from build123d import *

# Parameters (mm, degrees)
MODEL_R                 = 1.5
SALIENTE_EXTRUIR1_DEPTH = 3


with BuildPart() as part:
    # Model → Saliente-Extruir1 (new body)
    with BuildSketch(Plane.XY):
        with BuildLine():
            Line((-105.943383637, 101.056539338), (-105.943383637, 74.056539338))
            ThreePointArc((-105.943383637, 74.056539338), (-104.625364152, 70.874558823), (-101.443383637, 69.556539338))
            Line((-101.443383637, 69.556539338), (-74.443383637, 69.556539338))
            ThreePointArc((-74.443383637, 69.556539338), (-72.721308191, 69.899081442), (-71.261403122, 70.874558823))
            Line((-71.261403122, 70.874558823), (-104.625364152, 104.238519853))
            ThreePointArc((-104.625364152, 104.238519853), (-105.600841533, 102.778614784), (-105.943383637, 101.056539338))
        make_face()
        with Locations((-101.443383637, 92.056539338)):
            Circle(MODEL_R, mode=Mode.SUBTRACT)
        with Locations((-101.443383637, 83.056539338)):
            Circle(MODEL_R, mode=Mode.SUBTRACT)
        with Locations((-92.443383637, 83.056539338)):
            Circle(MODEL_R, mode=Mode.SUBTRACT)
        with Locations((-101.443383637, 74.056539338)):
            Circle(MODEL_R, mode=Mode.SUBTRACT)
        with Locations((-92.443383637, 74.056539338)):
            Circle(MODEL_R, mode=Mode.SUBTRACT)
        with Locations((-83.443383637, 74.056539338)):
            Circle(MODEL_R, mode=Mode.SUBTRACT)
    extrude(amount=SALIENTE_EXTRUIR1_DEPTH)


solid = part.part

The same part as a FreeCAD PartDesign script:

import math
import FreeCAD as App
import Part
import Sketcher

V = App.Vector
Q = App.Units.Quantity

doc = App.newDocument("Part")
body = doc.addObject("PartDesign::Body", "Body")

# Sketch on XY plane
sketch1 = doc.addObject("Sketcher::SketchObject", "Sketch")
body.addObject(sketch1)
sketch1.AttachmentSupport = (doc.XY_Plane, [""])
sketch1.MapMode = "FlatFace"
sketch1.addGeometry(Part.LineSegment(V(-105.943384, 101.056539, 0), V(-105.943384, 74.056539, 0)), False)
sketch1.addGeometry(Part.ArcOfCircle(Part.Circle(V(-101.443384, 74.056539, 0), V(0, 0, 1), 4.5), math.radians(-180), math.radians(-90)), False)
sketch1.addGeometry(Part.LineSegment(V(-101.443384, 69.556539, 0), V(-74.443384, 69.556539, 0)), False)
sketch1.addGeometry(Part.ArcOfCircle(Part.Circle(V(-74.443384, 74.056539, 0), V(0, 0, 1), 4.5), math.radians(-90), math.radians(-45)), False)
sketch1.addGeometry(Part.LineSegment(V(-71.261403, 70.874559, 0), V(-104.625364, 104.23852, 0)), False)
sketch1.addGeometry(Part.ArcOfCircle(Part.Circle(V(-101.443384, 101.056539, 0), V(0, 0, 1), 4.5), math.radians(135), math.radians(180)), False)
sketch1.addGeometry(Part.Circle(V(-101.443384, 74.056539, 0), V(0, 0, 1), 1.5), False)
sketch1.addGeometry(Part.Circle(V(-92.443384, 74.056539, 0), V(0, 0, 1), 1.5), False)
sketch1.addGeometry(Part.Circle(V(-83.443384, 74.056539, 0), V(0, 0, 1), 1.5), False)
sketch1.addGeometry(Part.Circle(V(-101.443384, 83.056539, 0), V(0, 0, 1), 1.5), False)
sketch1.addGeometry(Part.Circle(V(-101.443384, 92.056539, 0), V(0, 0, 1), 1.5), False)
sketch1.addGeometry(Part.Circle(V(-92.443384, 83.056539, 0), V(0, 0, 1), 1.5), False)
sketch1.addConstraint(Sketcher.Constraint("Tangent", 0, 2, 1, 1))
sketch1.addConstraint(Sketcher.Constraint("Tangent", 1, 2, 2, 1))
sketch1.addConstraint(Sketcher.Constraint("Tangent", 2, 2, 3, 1))
sketch1.addConstraint(Sketcher.Constraint("Coincident", 3, 2, 4, 1))
sketch1.addConstraint(Sketcher.Constraint("Coincident", 4, 2, 5, 1))
sketch1.addConstraint(Sketcher.Constraint("Tangent", 5, 2, 0, 1))
sketch1.addConstraint(Sketcher.Constraint("Vertical", 0))
sketch1.addConstraint(Sketcher.Constraint("Horizontal", 2))
sketch1.addConstraint(Sketcher.Constraint("Coincident", 6, 3, 1, 3))
sketch1.addConstraint(Sketcher.Constraint("Equal", 1, 3))
sketch1.addConstraint(Sketcher.Constraint("Equal", 3, 5))
sketch1.addConstraint(Sketcher.Constraint("Equal", 6, 7))
sketch1.addConstraint(Sketcher.Constraint("Equal", 7, 8))
sketch1.addConstraint(Sketcher.Constraint("Equal", 8, 9))
sketch1.addConstraint(Sketcher.Constraint("Equal", 9, 10))
sketch1.addConstraint(Sketcher.Constraint("Equal", 10, 11))
sketch1.addConstraint(Sketcher.Constraint("Horizontal", 6, 3, 7, 3))
sketch1.addConstraint(Sketcher.Constraint("Horizontal", 7, 3, 8, 3))
sketch1.addConstraint(Sketcher.Constraint("Horizontal", 9, 3, 11, 3))
sketch1.addConstraint(Sketcher.Constraint("Vertical", 6, 3, 9, 3))
sketch1.addConstraint(Sketcher.Constraint("Vertical", 9, 3, 10, 3))
sketch1.addConstraint(Sketcher.Constraint("Vertical", 7, 3, 11, 3))
sketch1.addConstraint(Sketcher.Constraint("Equal", 2, 0))
sketch1.addConstraint(Sketcher.Constraint("Diameter", 6, 3.0))
sketch1.addConstraint(Sketcher.Constraint("Radius", 1, 4.5))
sketch1.addConstraint(Sketcher.Constraint("DistanceX", 2, 1, 2, 2, 27.0))
sketch1.addConstraint(Sketcher.Constraint("Angle", 4, Q("135 deg")))
sketch1.addConstraint(Sketcher.Constraint("DistanceX", 1, 3, 7, 3, 9.0))
sketch1.addConstraint(Sketcher.Constraint("DistanceX", 8, 3, 3, 3, 9.0))
sketch1.addConstraint(Sketcher.Constraint("DistanceY", 1, 3, 9, 3, 9.0))
sketch1.addConstraint(Sketcher.Constraint("DistanceY", 10, 3, 5, 3, 9.0))
sketch1.addConstraint(Sketcher.Constraint("DistanceY", -1, 1, 1, 3, 74.056539))
sketch1.addConstraint(Sketcher.Constraint("DistanceY", -1, 1, 3, 2, 70.874559))
sketch1.addConstraint(Sketcher.Constraint("DistanceX", 1, 3, -1, 1, 101.443384))
pad1 = doc.addObject("PartDesign::Pad", "Pad")
body.addObject(pad1)
pad1.Profile = sketch1
pad1.Length = 3

doc.recompute()
